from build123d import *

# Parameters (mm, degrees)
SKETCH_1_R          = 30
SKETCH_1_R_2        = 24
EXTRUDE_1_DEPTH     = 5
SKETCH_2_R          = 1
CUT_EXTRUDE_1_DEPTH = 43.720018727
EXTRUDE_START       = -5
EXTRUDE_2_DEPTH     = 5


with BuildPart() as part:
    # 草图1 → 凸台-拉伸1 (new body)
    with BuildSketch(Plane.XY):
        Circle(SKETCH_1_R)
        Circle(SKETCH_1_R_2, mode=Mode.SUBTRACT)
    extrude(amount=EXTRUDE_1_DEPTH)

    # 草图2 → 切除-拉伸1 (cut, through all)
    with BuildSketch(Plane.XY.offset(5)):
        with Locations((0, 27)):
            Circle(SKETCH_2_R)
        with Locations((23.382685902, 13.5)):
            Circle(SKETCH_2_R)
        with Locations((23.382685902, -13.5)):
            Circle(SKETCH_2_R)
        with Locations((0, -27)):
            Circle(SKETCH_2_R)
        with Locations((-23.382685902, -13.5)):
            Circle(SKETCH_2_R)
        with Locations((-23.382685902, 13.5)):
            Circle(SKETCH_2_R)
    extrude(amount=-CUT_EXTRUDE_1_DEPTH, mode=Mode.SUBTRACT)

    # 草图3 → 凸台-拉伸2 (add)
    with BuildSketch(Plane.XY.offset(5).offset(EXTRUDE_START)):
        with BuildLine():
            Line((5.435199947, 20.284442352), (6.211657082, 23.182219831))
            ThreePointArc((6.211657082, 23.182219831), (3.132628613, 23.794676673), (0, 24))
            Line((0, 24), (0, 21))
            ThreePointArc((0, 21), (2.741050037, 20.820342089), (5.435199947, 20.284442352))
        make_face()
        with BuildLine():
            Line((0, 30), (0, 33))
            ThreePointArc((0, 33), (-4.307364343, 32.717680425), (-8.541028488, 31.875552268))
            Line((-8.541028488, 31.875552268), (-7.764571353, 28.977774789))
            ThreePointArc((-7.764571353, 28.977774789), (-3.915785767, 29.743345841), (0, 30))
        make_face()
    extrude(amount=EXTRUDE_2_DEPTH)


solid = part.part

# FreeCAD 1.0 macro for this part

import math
import FreeCAD as App
import Part
import Sketcher

V = App.Vector
Q = App.Units.Quantity

doc = App.newDocument("Part")
body = doc.addObject("PartDesign::Body", "Body")

# Sketch on XY plane
sketch1 = doc.addObject("Sketcher::SketchObject", "Sketch")
body.addObject(sketch1)
sketch1.AttachmentSupport = (doc.XY_Plane, [""])
sketch1.MapMode = "FlatFace"
sketch1.addGeometry(Part.Circle(V(0, 0, 0), V(0, 0, 1), 30), False)
sketch1.addGeometry(Part.Circle(V(0, 0, 0), V(0, 0, 1), 24), False)
sketch1.addConstraint(Sketcher.Constraint("Coincident", 0, 3, -1, 1))
sketch1.addConstraint(Sketcher.Constraint("Coincident", 1, 3, -1, 1))
sketch1.addConstraint(Sketcher.Constraint("Diameter", 0, 60.0))
sketch1.addConstraint(Sketcher.Constraint("Diameter", 1, 48.0))
pad1 = doc.addObject("PartDesign::Pad", "Pad")
body.addObject(pad1)
pad1.Profile = sketch1
pad1.Length = 5

# Sketch on XY plane
sketch2 = doc.addObject("Sketcher::SketchObject", "Sketch001")
body.addObject(sketch2)
sketch2.AttachmentSupport = (doc.XY_Plane, [""])
sketch2.MapMode = "FlatFace"
sketch2.AttachmentOffset = App.Placement(V(0, 0, 5), App.Rotation())
sketch2.addGeometry(Part.Circle(V(0, 27, 0), V(0, 0, 1), 1), False)
sketch2.addGeometry(Part.Circle(V(23.382686, 13.5, 0), V(0, 0, 1), 1), False)
sketch2.addGeometry(Part.Circle(V(23.382686, -13.5, 0), V(0, 0, 1), 1), False)
sketch2.addGeometry(Part.Circle(V(0, -27, 0), V(0, 0, 1), 1), False)
sketch2.addGeometry(Part.Circle(V(-23.382686, -13.5, 0), V(0, 0, 1), 1), False)
sketch2.addGeometry(Part.Circle(V(-23.382686, 13.5, 0), V(0, 0, 1), 1), False)
sketch2.addConstraint(Sketcher.Constraint("Equal", 0, 1))
sketch2.addConstraint(Sketcher.Constraint("Equal", 1, 2))
sketch2.addConstraint(Sketcher.Constraint("Equal", 2, 3))
sketch2.addConstraint(Sketcher.Constraint("Equal", 3, 4))
sketch2.addConstraint(Sketcher.Constraint("Equal", 4, 5))
sketch2.addConstraint(Sketcher.Constraint("Symmetric", 0, 3, 3, 3, -1, 1))
sketch2.addConstraint(Sketcher.Constraint("Symmetric", 1, 3, 4, 3, -1, 1))
sketch2.addConstraint(Sketcher.Constraint("Symmetric", 2, 3, 5, 3, -1, 1))
sketch2.addConstraint(Sketcher.Constraint("Symmetric", 2, 3, 4, 3, -2))
sketch2.addConstraint(Sketcher.Constraint("PointOnObject", 0, 3, -2))
sketch2.addConstraint(Sketcher.Constraint("Diameter", 0, 2.0))
sketch2.addConstraint(Sketcher.Constraint("DistanceY", -1, 1, 0, 3, 27.0))
sketch2.addConstraint(Sketcher.Constraint("DistanceY", 2, 3, 1, 3, 27.0))
sketch2.addConstraint(Sketcher.Constraint("DistanceX", 4, 3, 2, 3, 46.765372))
pocket1 = doc.addObject("PartDesign::Pocket", "Pocket")
body.addObject(pocket1)
pocket1.Profile = sketch2
pocket1.Type = "ThroughAll"

# Sketch on XY plane
sketch3 = doc.addObject("Sketcher::SketchObject", "Sketch002")
body.addObject(sketch3)
sketch3.AttachmentSupport = (doc.XY_Plane, [""])
sketch3.MapMode = "FlatFace"
sketch3.addGeometry(Part.LineSegment(V(5.4352, 20.284442, 0), V(6.211657, 23.18222, 0)), False)
sketch3.addGeometry(Part.ArcOfCircle(Part.Circle(V(0, 0, 0), V(0, 0, 1), 24), math.radians(75), math.radians(90)), False)
sketch3.addGeometry(Part.LineSegment(V(0, 24, 0), V(0, 21, 0)), False)
sketch3.addGeometry(Part.ArcOfCircle(Part.Circle(V(0, 0, 0), V(0, 0, 1), 21), math.radians(75), math.radians(90)), False)
sketch3.addGeometry(Part.LineSegment(V(0, 30, 0), V(0, 33, 0)), False)
sketch3.addGeometry(Part.ArcOfCircle(Part.Circle(V(0, 0, 0), V(0, 0, 1), 33), math.radians(90), math.radians(105)), False)
sketch3.addGeometry(Part.LineSegment(V(-8.541028, 31.875552, 0), V(-7.764571, 28.977775, 0)), False)
sketch3.addGeometry(Part.ArcOfCircle(Part.Circle(V(0, 0, 0), V(0, 0, 1), 30), math.radians(90), math.radians(105)), False)
sketch3.addConstraint(Sketcher.Constraint("Coincident", 0, 2, 1, 1))
sketch3.addConstraint(Sketcher.Constraint("Coincident", 1, 2, 2, 1))
sketch3.addConstraint(Sketcher.Constraint("Coincident", 2, 2, 3, 2))
sketch3.addConstraint(Sketcher.Constraint("Coincident", 3, 1, 0, 1))
sketch3.addConstraint(Sketcher.Constraint("Coincident", 4, 2, 5, 1))
sketch3.addConstraint(Sketcher.Constraint("Coincident", 5, 2, 6, 1))
sketch3.addConstraint(Sketcher.Constraint("Coincident", 6, 2, 7, 2))
sketch3.addConstraint(Sketcher.Constraint("Coincident", 7, 1, 4, 1))
sketch3.addConstraint(Sketcher.Constraint("Vertical", 2))
sketch3.addConstraint(Sketcher.Constraint("Vertical", 4))
sketch3.addConstraint(Sketcher.Constraint("Coincident", 1, 3, -1, 1))
sketch3.addConstraint(Sketcher.Constraint("Coincident", 3, 3, -1, 1))
sketch3.addConstraint(Sketcher.Constraint("Coincident", 5, 3, -1, 1))
sketch3.addConstraint(Sketcher.Constraint("Coincident", 7, 3, -1, 1))
sketch3.addConstraint(Sketcher.Constraint("PointOnObject", 1, 2, -2))
sketch3.addConstraint(Sketcher.Constraint("PointOnObject", 4, 2, -2))
sketch3.addConstraint(Sketcher.Constraint("Equal", 2, 4))
sketch3.addConstraint(Sketcher.Constraint("Radius", 1, 24.0))
sketch3.addConstraint(Sketcher.Constraint("Radius", 3, 21.0))
sketch3.addConstraint(Sketcher.Constraint("Radius", 5, 33.0))
sketch3.addConstraint(Sketcher.Constraint("Angle", 0, Q("75 deg")))
sketch3.addConstraint(Sketcher.Constraint("Angle", 6, Q("-75 deg")))
sketch3.addConstraint(Sketcher.Constraint("DistanceX", -1, 1, 3, 1, 5.4352))
sketch3.addConstraint(Sketcher.Constraint("DistanceX", 5, 2, -1, 1, 8.541028))
pad2 = doc.addObject("PartDesign::Pad", "Pad001")
body.addObject(pad2)
pad2.Profile = sketch3
pad2.Length = 5

doc.recompute()
